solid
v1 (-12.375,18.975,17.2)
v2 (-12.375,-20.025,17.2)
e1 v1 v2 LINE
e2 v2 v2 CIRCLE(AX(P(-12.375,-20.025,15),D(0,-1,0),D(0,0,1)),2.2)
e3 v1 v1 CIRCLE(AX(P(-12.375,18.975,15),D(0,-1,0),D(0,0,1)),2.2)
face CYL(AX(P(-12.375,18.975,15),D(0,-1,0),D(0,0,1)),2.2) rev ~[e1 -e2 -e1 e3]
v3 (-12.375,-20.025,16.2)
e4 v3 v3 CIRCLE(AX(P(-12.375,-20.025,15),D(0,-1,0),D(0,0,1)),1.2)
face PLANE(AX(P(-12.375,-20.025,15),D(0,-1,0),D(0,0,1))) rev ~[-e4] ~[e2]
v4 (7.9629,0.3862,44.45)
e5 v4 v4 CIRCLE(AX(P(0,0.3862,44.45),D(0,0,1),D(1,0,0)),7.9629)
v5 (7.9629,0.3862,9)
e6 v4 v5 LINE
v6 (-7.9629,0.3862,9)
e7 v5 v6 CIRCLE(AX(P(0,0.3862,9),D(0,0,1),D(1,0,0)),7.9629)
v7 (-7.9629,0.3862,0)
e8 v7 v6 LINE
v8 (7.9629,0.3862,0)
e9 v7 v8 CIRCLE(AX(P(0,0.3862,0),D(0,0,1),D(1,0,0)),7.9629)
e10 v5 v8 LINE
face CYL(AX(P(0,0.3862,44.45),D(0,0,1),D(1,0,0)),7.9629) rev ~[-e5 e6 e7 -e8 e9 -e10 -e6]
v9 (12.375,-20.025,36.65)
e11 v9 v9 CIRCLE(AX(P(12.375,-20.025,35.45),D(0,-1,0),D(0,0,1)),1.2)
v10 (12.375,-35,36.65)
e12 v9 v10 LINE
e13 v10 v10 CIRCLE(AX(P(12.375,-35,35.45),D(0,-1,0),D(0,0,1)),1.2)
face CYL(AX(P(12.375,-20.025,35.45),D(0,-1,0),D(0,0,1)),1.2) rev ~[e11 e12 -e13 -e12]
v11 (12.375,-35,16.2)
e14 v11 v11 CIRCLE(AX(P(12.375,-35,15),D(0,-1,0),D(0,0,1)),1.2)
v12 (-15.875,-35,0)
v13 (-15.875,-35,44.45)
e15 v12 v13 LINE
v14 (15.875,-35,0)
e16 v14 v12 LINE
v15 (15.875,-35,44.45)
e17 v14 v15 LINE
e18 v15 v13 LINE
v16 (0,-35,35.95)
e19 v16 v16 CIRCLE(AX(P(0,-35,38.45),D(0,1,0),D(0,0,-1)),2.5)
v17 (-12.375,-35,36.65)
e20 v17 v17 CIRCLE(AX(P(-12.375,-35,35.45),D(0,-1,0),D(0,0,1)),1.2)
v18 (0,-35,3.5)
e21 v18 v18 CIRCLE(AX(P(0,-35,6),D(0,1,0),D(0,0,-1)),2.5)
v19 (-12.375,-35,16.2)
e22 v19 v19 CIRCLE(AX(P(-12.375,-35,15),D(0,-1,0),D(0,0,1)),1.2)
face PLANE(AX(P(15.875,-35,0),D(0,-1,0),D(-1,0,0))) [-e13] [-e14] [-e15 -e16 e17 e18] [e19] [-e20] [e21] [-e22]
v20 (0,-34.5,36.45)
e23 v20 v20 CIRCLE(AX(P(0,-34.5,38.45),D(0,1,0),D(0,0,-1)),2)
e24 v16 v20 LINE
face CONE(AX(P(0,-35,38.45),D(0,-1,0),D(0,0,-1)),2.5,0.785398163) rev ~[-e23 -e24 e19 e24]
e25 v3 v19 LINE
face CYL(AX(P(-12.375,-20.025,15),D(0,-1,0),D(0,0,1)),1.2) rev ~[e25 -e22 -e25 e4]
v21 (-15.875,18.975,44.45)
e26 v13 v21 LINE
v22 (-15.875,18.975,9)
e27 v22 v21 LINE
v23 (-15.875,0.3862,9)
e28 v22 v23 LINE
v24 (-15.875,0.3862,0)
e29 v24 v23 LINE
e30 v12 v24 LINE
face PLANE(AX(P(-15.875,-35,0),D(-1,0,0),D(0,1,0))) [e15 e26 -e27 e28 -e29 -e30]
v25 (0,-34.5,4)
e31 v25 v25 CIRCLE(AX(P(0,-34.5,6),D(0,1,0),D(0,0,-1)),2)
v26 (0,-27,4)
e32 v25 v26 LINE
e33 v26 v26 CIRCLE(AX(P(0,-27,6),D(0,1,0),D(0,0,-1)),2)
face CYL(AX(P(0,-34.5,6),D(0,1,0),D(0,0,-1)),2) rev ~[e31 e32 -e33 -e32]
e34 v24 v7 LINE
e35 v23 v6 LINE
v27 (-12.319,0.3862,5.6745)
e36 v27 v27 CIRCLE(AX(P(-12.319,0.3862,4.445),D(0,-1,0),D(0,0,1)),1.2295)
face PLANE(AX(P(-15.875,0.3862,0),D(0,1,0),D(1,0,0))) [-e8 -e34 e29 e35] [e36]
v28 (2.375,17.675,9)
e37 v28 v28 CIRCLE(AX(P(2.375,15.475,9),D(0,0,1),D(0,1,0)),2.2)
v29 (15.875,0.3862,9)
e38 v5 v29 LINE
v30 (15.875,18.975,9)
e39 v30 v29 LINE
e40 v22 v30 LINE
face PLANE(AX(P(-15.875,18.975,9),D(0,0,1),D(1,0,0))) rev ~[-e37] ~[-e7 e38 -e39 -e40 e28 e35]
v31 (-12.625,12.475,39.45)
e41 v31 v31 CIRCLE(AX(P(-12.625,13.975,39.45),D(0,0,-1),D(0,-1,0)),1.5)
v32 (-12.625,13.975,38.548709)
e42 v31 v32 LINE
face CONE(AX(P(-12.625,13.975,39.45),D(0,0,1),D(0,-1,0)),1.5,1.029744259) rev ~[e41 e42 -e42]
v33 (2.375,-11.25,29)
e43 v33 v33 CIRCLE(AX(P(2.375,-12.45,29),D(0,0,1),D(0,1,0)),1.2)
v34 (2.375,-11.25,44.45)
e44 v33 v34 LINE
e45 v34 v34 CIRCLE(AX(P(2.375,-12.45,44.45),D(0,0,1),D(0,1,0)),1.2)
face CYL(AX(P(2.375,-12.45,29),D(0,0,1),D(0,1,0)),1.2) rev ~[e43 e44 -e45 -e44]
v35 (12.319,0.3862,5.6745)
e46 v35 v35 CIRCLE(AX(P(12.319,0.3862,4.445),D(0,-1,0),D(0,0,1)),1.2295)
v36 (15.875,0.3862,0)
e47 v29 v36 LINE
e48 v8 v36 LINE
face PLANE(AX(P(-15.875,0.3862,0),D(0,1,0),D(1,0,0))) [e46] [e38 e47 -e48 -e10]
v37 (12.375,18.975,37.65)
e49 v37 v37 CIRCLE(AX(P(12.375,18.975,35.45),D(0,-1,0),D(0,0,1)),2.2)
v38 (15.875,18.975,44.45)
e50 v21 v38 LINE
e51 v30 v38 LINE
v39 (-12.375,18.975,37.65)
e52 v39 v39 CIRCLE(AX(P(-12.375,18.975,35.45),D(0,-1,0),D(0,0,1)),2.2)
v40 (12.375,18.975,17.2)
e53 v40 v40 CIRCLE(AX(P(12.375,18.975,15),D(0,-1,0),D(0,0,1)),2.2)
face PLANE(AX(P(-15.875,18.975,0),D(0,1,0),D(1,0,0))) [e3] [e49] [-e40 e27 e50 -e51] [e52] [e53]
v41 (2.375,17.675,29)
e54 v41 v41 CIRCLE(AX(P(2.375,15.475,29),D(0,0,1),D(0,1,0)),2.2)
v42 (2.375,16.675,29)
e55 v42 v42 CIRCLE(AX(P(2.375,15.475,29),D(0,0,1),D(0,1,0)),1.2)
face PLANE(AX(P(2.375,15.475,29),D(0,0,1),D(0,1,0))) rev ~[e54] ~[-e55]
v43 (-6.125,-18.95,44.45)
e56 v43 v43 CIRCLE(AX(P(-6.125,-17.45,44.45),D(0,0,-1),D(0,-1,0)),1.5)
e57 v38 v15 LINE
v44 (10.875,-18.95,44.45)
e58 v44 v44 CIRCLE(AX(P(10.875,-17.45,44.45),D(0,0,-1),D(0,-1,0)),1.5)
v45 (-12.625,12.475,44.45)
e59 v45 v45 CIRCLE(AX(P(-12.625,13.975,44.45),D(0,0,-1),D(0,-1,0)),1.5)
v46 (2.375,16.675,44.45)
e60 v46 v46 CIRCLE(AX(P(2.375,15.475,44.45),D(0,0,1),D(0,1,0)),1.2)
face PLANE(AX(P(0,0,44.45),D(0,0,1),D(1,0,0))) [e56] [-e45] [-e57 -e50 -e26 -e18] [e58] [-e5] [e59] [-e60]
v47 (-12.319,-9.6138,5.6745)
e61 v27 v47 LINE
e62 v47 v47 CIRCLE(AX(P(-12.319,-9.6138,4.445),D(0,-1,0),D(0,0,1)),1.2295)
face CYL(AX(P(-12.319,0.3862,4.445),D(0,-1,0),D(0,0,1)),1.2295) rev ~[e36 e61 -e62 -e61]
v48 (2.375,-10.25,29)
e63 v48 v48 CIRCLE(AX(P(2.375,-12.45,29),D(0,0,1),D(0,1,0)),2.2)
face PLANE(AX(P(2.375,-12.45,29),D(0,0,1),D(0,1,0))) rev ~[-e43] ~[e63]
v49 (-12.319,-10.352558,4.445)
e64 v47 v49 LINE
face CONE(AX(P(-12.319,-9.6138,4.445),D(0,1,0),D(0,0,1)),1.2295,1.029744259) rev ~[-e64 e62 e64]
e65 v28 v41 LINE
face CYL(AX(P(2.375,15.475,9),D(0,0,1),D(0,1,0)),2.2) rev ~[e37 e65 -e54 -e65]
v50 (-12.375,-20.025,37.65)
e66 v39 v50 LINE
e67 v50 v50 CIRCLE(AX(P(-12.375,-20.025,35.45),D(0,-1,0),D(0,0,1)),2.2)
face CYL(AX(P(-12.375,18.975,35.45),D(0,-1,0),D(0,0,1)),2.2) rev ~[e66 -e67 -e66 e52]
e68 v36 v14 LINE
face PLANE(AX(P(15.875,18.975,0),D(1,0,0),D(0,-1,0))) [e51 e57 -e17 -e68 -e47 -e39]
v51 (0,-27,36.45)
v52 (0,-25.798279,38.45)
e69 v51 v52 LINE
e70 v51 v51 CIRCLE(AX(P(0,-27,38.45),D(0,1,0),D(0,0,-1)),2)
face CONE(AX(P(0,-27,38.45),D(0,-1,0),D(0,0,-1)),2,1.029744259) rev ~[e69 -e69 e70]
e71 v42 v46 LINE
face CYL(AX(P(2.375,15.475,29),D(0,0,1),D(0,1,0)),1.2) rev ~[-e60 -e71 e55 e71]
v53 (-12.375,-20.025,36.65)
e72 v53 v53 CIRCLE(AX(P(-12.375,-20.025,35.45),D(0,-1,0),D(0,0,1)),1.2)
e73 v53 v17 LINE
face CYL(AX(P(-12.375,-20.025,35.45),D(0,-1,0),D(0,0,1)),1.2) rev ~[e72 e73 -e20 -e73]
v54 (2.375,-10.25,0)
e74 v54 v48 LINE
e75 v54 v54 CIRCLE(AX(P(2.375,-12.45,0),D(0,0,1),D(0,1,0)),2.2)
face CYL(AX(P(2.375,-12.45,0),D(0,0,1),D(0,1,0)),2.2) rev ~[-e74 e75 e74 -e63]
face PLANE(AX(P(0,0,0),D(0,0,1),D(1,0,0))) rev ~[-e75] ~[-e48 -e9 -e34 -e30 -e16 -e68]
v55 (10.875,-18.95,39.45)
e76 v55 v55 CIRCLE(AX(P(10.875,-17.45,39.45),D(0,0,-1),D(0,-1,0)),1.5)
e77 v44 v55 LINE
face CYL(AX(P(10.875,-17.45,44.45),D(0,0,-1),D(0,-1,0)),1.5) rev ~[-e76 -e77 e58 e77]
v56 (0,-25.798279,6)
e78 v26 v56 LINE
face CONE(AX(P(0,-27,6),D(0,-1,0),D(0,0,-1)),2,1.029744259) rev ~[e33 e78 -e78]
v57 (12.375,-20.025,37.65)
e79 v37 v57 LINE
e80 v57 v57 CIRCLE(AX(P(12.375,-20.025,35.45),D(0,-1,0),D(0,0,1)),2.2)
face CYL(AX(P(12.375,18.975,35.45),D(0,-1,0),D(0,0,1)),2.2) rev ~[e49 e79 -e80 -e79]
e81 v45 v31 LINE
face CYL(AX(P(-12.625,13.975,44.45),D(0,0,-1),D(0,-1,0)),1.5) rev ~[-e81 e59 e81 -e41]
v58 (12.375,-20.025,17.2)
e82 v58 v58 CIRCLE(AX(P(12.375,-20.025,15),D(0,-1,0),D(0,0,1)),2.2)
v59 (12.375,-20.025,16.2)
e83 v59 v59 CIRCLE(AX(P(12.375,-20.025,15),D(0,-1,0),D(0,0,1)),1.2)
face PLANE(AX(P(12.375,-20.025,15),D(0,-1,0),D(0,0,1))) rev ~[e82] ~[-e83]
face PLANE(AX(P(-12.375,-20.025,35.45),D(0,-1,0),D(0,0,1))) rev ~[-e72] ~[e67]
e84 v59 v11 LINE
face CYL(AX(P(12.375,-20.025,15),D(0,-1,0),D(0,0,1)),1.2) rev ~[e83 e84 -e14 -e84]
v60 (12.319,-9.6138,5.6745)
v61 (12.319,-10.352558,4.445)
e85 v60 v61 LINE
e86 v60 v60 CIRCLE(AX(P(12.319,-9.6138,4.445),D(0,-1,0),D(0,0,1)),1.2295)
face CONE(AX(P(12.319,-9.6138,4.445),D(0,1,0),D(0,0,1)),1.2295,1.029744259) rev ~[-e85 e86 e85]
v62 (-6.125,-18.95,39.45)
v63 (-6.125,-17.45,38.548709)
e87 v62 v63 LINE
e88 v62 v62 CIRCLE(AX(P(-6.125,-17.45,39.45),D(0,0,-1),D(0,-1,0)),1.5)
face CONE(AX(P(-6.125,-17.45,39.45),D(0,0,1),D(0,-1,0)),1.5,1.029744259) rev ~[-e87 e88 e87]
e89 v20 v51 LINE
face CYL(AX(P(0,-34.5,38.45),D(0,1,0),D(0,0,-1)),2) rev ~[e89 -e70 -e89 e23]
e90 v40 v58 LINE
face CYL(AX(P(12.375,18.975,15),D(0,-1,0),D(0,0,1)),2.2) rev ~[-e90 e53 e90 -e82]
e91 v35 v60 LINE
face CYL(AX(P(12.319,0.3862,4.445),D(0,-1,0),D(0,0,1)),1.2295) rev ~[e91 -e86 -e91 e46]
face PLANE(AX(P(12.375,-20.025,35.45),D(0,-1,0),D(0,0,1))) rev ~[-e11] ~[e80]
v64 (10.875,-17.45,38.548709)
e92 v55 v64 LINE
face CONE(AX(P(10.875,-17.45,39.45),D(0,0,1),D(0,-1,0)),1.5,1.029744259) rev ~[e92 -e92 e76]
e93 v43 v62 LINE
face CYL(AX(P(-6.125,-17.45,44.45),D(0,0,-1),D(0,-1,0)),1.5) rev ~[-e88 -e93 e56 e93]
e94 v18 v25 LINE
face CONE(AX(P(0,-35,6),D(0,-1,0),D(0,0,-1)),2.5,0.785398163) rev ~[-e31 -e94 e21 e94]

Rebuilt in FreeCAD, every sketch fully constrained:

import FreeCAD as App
import Part
import Sketcher
from FreeCAD import Vector

doc = App.newDocument("Part")
body = doc.addObject("PartDesign::Body", "Body")

# Sketch on XY plane
sketch1 = doc.addObject("Sketcher::SketchObject", "Sketch")
body.addObject(sketch1)
sketch1.AttachmentSupport = (doc.XY_Plane, [""])
sketch1.MapMode = "FlatFace"
sketch1.addGeometry([
    Part.LineSegment(Vector(15.875, 18.975, 0), Vector(-15.875, 18.975, 0)),
    Part.LineSegment(Vector(-15.875, 18.975, 0), Vector(-15.875, -35, 0)),
    Part.LineSegment(Vector(-15.875, -35, 0), Vector(15.875, -35, 0)),
    Part.LineSegment(Vector(15.875, -35, 0), Vector(15.875, 18.975, 0)),
], False)
sketch1.addConstraint([
    Sketcher.Constraint("Coincident", 0, 2, 1, 1),
    Sketcher.Constraint("Coincident", 1, 2, 2, 1),
    Sketcher.Constraint("Coincident", 2, 2, 3, 1),
    Sketcher.Constraint("Coincident", 3, 2, 0, 1),
    Sketcher.Constraint("Horizontal", 0),
    Sketcher.Constraint("Vertical", 1),
    Sketcher.Constraint("Horizontal", 2),
    Sketcher.Constraint("Vertical", 3),
    Sketcher.Constraint("DistanceY", 1, 2, -1, 1, 35.0),
    Sketcher.Constraint("DistanceX", 0, 2, 0, 1, 31.75),
    Sketcher.Constraint("DistanceY", 1, 2, 1, 1, 53.975),
    Sketcher.Constraint("DistanceX", 0, 2, -1, 1, 15.875),
])
pad1 = doc.addObject("PartDesign::Pad", "Pad")
body.addObject(pad1)
pad1.Profile = sketch1
pad1.Length = 44.45

# Sketch on XY plane
sketch2 = doc.addObject("Sketcher::SketchObject", "Sketch001")
body.addObject(sketch2)
sketch2.AttachmentSupport = (doc.XY_Plane, [""])
sketch2.MapMode = "FlatFace"
sketch2.AttachmentOffset = App.Placement(Vector(0, 0, 44.45), App.Rotation())
sketch2.addGeometry(Part.Circle(Vector(0, 0.3862, 0), Vector(0, 0, 1), 7.9629), False)
sketch2.addConstraint([
    Sketcher.Constraint("PointOnObject", 0, 3, -2),
    Sketcher.Constraint("Diameter", 0, 15.9258),
    Sketcher.Constraint("DistanceY", -1, 1, 0, 3, 0.3862),
])
pocket1 = doc.addObject("PartDesign::Pocket", "Pocket")
body.addObject(pocket1)
pocket1.Profile = sketch2
pocket1.Type = "ThroughAll"

# Sketch on XZ plane
sketch3 = doc.addObject("Sketcher::SketchObject", "Sketch002")
body.addObject(sketch3)
sketch3.AttachmentSupport = (doc.XZ_Plane, [""])
sketch3.MapMode = "FlatFace"
sketch3.AttachmentOffset = App.Placement(Vector(0, 0, -18.975), App.Rotation())
sketch3.addGeometry([
    Part.LineSegment(Vector(15.875, 0, 0), Vector(-15.875, 0, 0)),
    Part.LineSegment(Vector(-15.875, 0, 0), Vector(-15.875, 9, 0)),
    Part.LineSegment(Vector(-15.875, 9, 0), Vector(15.875, 9, 0)),
    Part.LineSegment(Vector(15.875, 9, 0), Vector(15.875, 0, 0)),
], False)
sketch3.addConstraint([
    Sketcher.Constraint("Coincident", 0, 2, 1, 1),
    Sketcher.Constraint("Coincident", 1, 2, 2, 1),
    Sketcher.Constraint("Coincident", 2, 2, 3, 1),
    Sketcher.Constraint("Coincident", 3, 2, 0, 1),
    Sketcher.Constraint("Horizontal", 0),
    Sketcher.Constraint("Vertical", 1),
    Sketcher.Constraint("Horizontal", 2),
    Sketcher.Constraint("Vertical", 3),
    Sketcher.Constraint("Symmetric", 0, 2, 3, 2, -1, 1),
    Sketcher.Constraint("DistanceY", 1, 1, 1, 2, 9.0),
    Sketcher.Constraint("DistanceX", 0, 2, 0, 1, 31.75),
])
pocket2 = doc.addObject("PartDesign::Pocket", "Pocket001")
body.addObject(pocket2)
pocket2.Profile = sketch3
pocket2.Length = 18.5888
pocket2.Reversed = True

# Sketch on XY plane
sketch4 = doc.addObject("Sketcher::SketchObject", "Sketch003")
body.addObject(sketch4)
sketch4.AttachmentSupport = (doc.XY_Plane, [""])
sketch4.MapMode = "FlatFace"
sketch4.AttachmentOffset = App.Placement(Vector(0, 0, 44.45), App.Rotation())
sketch4.addGeometry([
    Part.Circle(Vector(-6.125, -17.45, 0), Vector(0, 0, 1), 1.5),
    Part.Circle(Vector(10.875, -17.45, 0), Vector(0, 0, 1), 1.5),
    Part.Circle(Vector(-12.625, 13.975, 0), Vector(0, 0, 1), 1.5),
], False)
sketch4.addConstraint([
    Sketcher.Constraint("Equal", 0, 1),
    Sketcher.Constraint("Equal", 1, 2),
    Sketcher.Constraint("Horizontal", 0, 3, 1, 3),
    Sketcher.Constraint("Diameter", 0, 3.0),
    Sketcher.Constraint("DistanceX", 0, 3, 1, 3, 17.0),
    Sketcher.Constraint("DistanceX", 2, 3, 0, 3, 6.5),
    Sketcher.Constraint("DistanceY", 0, 3, -1, 1, 17.45),
    Sketcher.Constraint("DistanceX", 0, 3, -1, 1, 6.125),
    Sketcher.Constraint("DistanceY", -1, 1, 2, 3, 13.975),
])
doc.recompute()
hole = doc.addObject("PartDesign::Hole", "Hole")
body.addObject(hole)
hole.Profile = sketch4
hole.ThreadType = "None"
hole.Diameter = 3
hole.DepthType = "Dimension"
hole.Depth = 5
hole.DrillPoint = "Angled"
hole.DrillPointAngle = 118

# Sketch on XZ plane
sketch5 = doc.addObject("Sketcher::SketchObject", "Sketch004")
body.addObject(sketch5)
sketch5.AttachmentSupport = (doc.XZ_Plane, [""])
sketch5.MapMode = "FlatFace"
sketch5.AttachmentOffset = App.Placement(Vector(0, 0, -18.975), App.Rotation())
sketch5.addGeometry([
    Part.Circle(Vector(12.375, 35.45, 0), Vector(0, 0, 1), 1.2),
    Part.Circle(Vector(-12.375, 35.45, 0), Vector(0, 0, 1), 1.2),
    Part.Circle(Vector(-12.375, 15, 0), Vector(0, 0, 1), 1.2),
    Part.Circle(Vector(12.375, 15, 0), Vector(0, 0, 1), 1.2),
], False)
sketch5.addConstraint([
    Sketcher.Constraint("Equal", 0, 1),
    Sketcher.Constraint("Equal", 1, 2),
    Sketcher.Constraint("Equal", 2, 3),
    Sketcher.Constraint("Symmetric", 0, 3, 1, 3, -2),
    Sketcher.Constraint("Symmetric", 2, 3, 3, 3, -2),
    Sketcher.Constraint("Vertical", 1, 3, 2, 3),
    Sketcher.Constraint("Diameter", 0, 2.4),
    Sketcher.Constraint("DistanceY", -1, 1, 2, 3, 15.0),
    Sketcher.Constraint("DistanceY", -1, 1, 0, 3, 35.45),
    Sketcher.Constraint("DistanceX", 1, 3, 0, 3, 24.75),
])
doc.recompute()
hole2 = doc.addObject("PartDesign::Hole", "Hole001")
body.addObject(hole2)
hole2.Profile = sketch5
hole2.ThreadType = "None"
hole2.Diameter = 2.4
hole2.DepthType = "ThroughAll"
hole2.HoleCutType = "Counterbore"
hole2.HoleCutDiameter = 4.4
hole2.HoleCutDepth = 39
hole2.Reversed = True

# Sketch on XY plane
sketch6 = doc.addObject("Sketcher::SketchObject", "Sketch005")
body.addObject(sketch6)
sketch6.AttachmentSupport = (doc.XY_Plane, [""])
sketch6.MapMode = "FlatFace"
sketch6.AttachmentOffset = App.Placement(Vector(0, 0, 9), App.Rotation())
sketch6.addGeometry(Part.Circle(Vector(2.375, 15.475, 0), Vector(0, 0, 1), 1.2), False)
sketch6.addConstraint([
    Sketcher.Constraint("Diameter", 0, 2.4),
    Sketcher.Constraint("DistanceX", -1, 1, 0, 3, 2.375),
    Sketcher.Constraint("DistanceY", -1, 1, 0, 3, 15.475),
])
doc.recompute()
hole3 = doc.addObject("PartDesign::Hole", "Hole002")
body.addObject(hole3)
hole3.Profile = sketch6
hole3.ThreadType = "None"
hole3.Diameter = 2.4
hole3.DepthType = "ThroughAll"
hole3.HoleCutType = "Counterbore"
hole3.HoleCutDiameter = 4.4
hole3.HoleCutDepth = 20
hole3.Reversed = True

# Sketch on XY plane
sketch7 = doc.addObject("Sketcher::SketchObject", "Sketch006")
body.addObject(sketch7)
sketch7.AttachmentSupport = (doc.XY_Plane, [""])
sketch7.MapMode = "FlatFace"
sketch7.addGeometry(Part.Circle(Vector(2.375, -12.45, 0), Vector(0, 0, 1), 1.2), False)
sketch7.addConstraint([
    Sketcher.Constraint("Diameter", 0, 2.4),
    Sketcher.Constraint("DistanceY", 0, 3, -1, 1, 12.45),
    Sketcher.Constraint("DistanceX", -1, 1, 0, 3, 2.375),
])
doc.recompute()
hole4 = doc.addObject("PartDesign::Hole", "Hole003")
body.addObject(hole4)
hole4.Profile = sketch7
hole4.ThreadType = "None"
hole4.Diameter = 2.4
hole4.DepthType = "ThroughAll"
hole4.HoleCutType = "Counterbore"
hole4.HoleCutDiameter = 4.4
hole4.HoleCutDepth = 29
hole4.Reversed = True

# Sketch on XZ plane
sketch8 = doc.addObject("Sketcher::SketchObject", "Sketch007")
body.addObject(sketch8)
sketch8.AttachmentSupport = (doc.XZ_Plane, [""])
sketch8.MapMode = "FlatFace"
sketch8.AttachmentOffset = App.Placement(Vector(0, 0, 35), App.Rotation())
sketch8.addGeometry([
    Part.Circle(Vector(0, 38.45, 0), Vector(0, 0, 1), 2),
    Part.Circle(Vector(0, 6, 0), Vector(0, 0, 1), 2),
], False)
sketch8.addConstraint([
    Sketcher.Constraint("Equal", 0, 1),
    Sketcher.Constraint("PointOnObject", 0, 3, -2),
    Sketcher.Constraint("PointOnObject", 1, 3, -2),
    Sketcher.Constraint("Diameter", 0, 4.0),
    Sketcher.Constraint("DistanceY", -1, 1, 1, 3, 6.0),
    Sketcher.Constraint("DistanceY", -1, 1, 0, 3, 38.45),
])
doc.recompute()
hole5 = doc.addObject("PartDesign::Hole", "Hole004")
body.addObject(hole5)
hole5.Profile = sketch8
hole5.ThreadType = "None"
hole5.Diameter = 4
hole5.DepthType = "Dimension"
hole5.Depth = 8
hole5.DrillPoint = "Angled"
hole5.DrillPointAngle = 118
hole5.HoleCutType = "Countersink"
hole5.HoleCutDiameter = 5
hole5.HoleCutCountersinkAngle = 90

# Sketch on XZ plane
sketch9 = doc.addObject("Sketcher::SketchObject", "Sketch008")
body.addObject(sketch9)
sketch9.AttachmentSupport = (doc.XZ_Plane, [""])
sketch9.MapMode = "FlatFace"
sketch9.AttachmentOffset = App.Placement(Vector(0, 0, -0.3862), App.Rotation())
sketch9.addGeometry([
    Part.Circle(Vector(12.319, 4.445, 0), Vector(0, 0, 1), 1.2295),
    Part.Circle(Vector(-12.319, 4.445, 0), Vector(0, 0, 1), 1.2295),
], False)
sketch9.addConstraint([
    Sketcher.Constraint("Equal", 0, 1),
    Sketcher.Constraint("Symmetric", 0, 3, 1, 3, -2),
    Sketcher.Constraint("Diameter", 0, 2.459),
    Sketcher.Constraint("DistanceX", -1, 1, 0, 3, 12.319),
    Sketcher.Constraint("DistanceY", -1, 1, 0, 3, 4.445),
])
doc.recompute()
hole6 = doc.addObject("PartDesign::Hole", "Hole005")
body.addObject(hole6)
hole6.Profile = sketch9
hole6.ThreadType = "None"
hole6.Diameter = 2.459
hole6.DepthType = "Dimension"
hole6.Depth = 10
hole6.DrillPoint = "Angled"
hole6.DrillPointAngle = 118
hole6.Reversed = True

doc.recompute()
